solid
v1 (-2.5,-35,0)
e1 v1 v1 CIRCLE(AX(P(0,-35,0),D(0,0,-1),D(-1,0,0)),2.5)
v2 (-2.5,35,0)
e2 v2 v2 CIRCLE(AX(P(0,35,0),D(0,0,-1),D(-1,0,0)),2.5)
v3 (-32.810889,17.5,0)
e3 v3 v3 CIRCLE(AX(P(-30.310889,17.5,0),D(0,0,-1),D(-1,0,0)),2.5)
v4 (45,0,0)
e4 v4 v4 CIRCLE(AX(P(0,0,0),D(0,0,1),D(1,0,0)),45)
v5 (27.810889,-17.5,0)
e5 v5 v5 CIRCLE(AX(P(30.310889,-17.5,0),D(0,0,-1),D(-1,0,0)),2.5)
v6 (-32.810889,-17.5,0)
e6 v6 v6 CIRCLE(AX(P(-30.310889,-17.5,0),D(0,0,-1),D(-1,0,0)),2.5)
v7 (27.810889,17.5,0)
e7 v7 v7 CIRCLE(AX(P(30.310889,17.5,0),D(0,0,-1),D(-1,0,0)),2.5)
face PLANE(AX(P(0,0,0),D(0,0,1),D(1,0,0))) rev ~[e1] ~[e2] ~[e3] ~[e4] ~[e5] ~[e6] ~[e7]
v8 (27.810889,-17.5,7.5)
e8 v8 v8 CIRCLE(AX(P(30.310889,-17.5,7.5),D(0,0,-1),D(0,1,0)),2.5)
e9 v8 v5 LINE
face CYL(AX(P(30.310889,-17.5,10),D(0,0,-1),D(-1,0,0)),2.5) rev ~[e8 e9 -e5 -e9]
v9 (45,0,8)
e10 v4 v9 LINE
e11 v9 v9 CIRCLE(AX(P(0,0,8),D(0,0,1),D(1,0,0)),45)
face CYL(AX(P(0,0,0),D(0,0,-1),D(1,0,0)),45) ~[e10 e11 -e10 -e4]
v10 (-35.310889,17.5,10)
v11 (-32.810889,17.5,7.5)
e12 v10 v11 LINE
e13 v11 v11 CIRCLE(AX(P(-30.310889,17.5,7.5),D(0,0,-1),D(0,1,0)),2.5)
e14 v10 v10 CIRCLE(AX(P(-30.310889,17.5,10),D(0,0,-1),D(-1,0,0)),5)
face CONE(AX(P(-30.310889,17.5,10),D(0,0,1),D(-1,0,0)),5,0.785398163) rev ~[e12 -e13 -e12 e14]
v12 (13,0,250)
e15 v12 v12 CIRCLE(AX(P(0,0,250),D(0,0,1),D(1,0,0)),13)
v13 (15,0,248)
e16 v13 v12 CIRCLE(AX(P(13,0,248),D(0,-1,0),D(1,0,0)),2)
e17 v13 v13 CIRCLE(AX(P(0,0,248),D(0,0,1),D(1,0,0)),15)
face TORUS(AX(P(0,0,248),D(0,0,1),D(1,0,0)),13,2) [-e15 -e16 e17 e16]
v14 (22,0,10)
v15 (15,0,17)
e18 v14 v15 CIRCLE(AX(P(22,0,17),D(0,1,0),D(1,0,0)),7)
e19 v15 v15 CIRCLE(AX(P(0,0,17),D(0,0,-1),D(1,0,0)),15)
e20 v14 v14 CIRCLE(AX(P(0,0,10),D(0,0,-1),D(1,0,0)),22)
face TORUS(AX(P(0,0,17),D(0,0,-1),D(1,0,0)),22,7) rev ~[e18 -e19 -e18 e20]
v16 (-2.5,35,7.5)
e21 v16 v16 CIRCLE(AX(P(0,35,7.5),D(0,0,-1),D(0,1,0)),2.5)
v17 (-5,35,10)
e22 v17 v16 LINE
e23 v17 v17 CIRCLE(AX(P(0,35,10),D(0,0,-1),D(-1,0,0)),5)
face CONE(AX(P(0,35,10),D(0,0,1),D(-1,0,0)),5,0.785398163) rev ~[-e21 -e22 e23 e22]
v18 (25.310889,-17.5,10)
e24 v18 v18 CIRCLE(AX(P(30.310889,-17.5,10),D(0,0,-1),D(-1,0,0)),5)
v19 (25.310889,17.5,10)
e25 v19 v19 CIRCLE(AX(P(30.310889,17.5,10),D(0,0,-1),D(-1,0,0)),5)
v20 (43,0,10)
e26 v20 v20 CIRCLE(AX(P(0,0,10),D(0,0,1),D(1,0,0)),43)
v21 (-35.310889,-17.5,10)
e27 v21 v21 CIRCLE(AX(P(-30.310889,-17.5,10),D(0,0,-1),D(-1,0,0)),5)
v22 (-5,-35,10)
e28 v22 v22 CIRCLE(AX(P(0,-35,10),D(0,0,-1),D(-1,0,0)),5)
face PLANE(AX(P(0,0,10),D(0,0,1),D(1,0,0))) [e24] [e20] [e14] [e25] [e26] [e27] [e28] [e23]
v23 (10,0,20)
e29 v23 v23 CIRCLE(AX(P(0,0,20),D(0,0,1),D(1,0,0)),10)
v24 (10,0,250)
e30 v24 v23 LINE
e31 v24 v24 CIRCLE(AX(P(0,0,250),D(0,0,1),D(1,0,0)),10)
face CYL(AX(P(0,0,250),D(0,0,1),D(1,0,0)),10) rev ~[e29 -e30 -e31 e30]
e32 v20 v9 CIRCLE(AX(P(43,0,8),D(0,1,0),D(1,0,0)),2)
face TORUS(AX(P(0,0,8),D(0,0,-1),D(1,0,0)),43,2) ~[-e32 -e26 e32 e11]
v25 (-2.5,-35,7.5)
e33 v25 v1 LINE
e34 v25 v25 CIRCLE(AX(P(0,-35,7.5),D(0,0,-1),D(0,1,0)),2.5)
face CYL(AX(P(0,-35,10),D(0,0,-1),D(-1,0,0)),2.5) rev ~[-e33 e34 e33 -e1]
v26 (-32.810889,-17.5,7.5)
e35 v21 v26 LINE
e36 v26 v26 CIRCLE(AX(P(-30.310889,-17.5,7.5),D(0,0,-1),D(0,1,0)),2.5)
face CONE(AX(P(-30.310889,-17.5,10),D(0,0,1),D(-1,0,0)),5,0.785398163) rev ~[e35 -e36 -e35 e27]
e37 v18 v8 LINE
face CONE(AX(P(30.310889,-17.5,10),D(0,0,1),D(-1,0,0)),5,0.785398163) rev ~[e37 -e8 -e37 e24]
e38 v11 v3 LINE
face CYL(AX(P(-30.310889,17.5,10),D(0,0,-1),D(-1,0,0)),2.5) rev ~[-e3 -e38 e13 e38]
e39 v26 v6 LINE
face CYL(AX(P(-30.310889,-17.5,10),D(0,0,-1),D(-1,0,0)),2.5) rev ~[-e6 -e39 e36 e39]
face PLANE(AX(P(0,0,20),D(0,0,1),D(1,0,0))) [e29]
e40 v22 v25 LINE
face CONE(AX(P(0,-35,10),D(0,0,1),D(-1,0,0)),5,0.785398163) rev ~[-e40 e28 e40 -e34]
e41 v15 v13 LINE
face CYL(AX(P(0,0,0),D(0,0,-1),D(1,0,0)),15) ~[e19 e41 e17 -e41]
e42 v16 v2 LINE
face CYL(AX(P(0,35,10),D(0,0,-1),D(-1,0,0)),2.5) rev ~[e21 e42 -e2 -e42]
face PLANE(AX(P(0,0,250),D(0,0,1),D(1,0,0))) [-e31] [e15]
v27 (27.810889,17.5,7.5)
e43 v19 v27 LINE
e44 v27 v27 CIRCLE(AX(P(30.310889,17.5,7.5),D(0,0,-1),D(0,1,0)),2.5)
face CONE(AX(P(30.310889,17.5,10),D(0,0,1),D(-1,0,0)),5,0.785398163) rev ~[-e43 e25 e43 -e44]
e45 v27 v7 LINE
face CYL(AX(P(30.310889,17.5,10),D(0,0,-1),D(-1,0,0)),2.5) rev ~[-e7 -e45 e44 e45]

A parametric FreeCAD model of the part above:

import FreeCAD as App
import Part
import Sketcher
Q = App.Units.Quantity


def edges_at(feature, points):
    """Names of the edges that pass closest to the given points."""
    edges = feature.Shape.Edges
    near = lambda p: min(range(len(edges)), key=lambda i: edges[i].distToShape(Part.Vertex(*p))[0])
    return sorted({f"Edge{near(p) + 1}" for p in points})

doc = App.newDocument("Part")
body = doc.addObject("PartDesign::Body", "Body")

sketch1 = body.newObject("Sketcher::SketchObject", "Sketch")
sketch1.AttachmentSupport = (doc.getObject("XY_Plane"), [""])
sketch1.MapMode = "FlatFace"
sketch1.addGeometry(Part.Circle(App.Vector(0, 0, 0), App.Vector(0, 0, 1), 45), False)
sketch1.addConstraint([
    Sketcher.Constraint("Coincident", 0, 3, -1, 1),
    Sketcher.Constraint("Diameter", 0, Q("90 mm")),
])
pad1 = body.newObject("PartDesign::Pad", "Pad")
pad1.Profile = sketch1
pad1.Length = 10

sketch2 = body.newObject("Sketcher::SketchObject", "Sketch001")
sketch2.AttachmentSupport = (doc.getObject("XY_Plane"), [""])
sketch2.MapMode = "FlatFace"
sketch2.addGeometry(Part.Circle(App.Vector(0, 0, 0), App.Vector(0, 0, 1), 15), False)
sketch2.addConstraint([
    Sketcher.Constraint("Coincident", 0, 3, -1, 1),
    Sketcher.Constraint("Diameter", 0, Q("30 mm")),
])
pad2 = body.newObject("PartDesign::Pad", "Pad001")
pad2.Profile = sketch2
pad2.Length = 250

sketch3 = body.newObject("Sketcher::SketchObject", "Sketch002")
sketch3.AttachmentSupport = (doc.getObject("XY_Plane"), [""])
sketch3.MapMode = "FlatFace"
sketch3.AttachmentOffset = App.Placement(App.Vector(0, 0, 10), App.Rotation())
sketch3.addGeometry([
    Part.Circle(App.Vector(0, 35, 0), App.Vector(0, 0, 1), 2.5),
    Part.Circle(App.Vector(-30.3, 17.5, 0), App.Vector(0, 0, 1), 2.5),
    Part.Circle(App.Vector(-30.3, -17.5, 0), App.Vector(0, 0, 1), 2.5),
    Part.Circle(App.Vector(0, -35, 0), App.Vector(0, 0, 1), 2.5),
    Part.Circle(App.Vector(30.3, -17.5, 0), App.Vector(0, 0, 1), 2.5),
    Part.Circle(App.Vector(30.3, 17.5, 0), App.Vector(0, 0, 1), 2.5),
], False)
sketch3.addConstraint([
    Sketcher.Constraint("Equal", 0, 1),
    Sketcher.Constraint("Equal", 1, 2),
    Sketcher.Constraint("Equal", 2, 3),
    Sketcher.Constraint("Equal", 3, 4),
    Sketcher.Constraint("Equal", 4, 5),
    Sketcher.Constraint("Symmetric", 0, 3, 3, 3, -1, 1),
    Sketcher.Constraint("Symmetric", 1, 3, 4, 3, -1, 1),
    Sketcher.Constraint("Symmetric", 2, 3, 5, 3, -1, 1),
    Sketcher.Constraint("Symmetric", 2, 3, 4, 3, -2),
    Sketcher.Constraint("PointOnObject", 0, 3, -2),
    Sketcher.Constraint("Diameter", 0, Q("5 mm")),
    Sketcher.Constraint("DistanceY", -1, 1, 0, 3, Q("35 mm")),
    Sketcher.Constraint("DistanceY", 2, 3, 1, 3, Q("35 mm")),
    Sketcher.Constraint("DistanceX", 1, 3, -1, 1, Q("30.310889 mm")),
])
doc.recompute()
hole = body.newObject("PartDesign::Hole", "Hole")
hole.Profile = sketch3
hole.ThreadType = "None"
hole.Diameter = 5
hole.DepthType = "ThroughAll"
hole.HoleCutType = "Countersink"
hole.HoleCutDiameter = 10
hole.HoleCutCountersinkAngle = 90
doc.recompute()

fillet = body.newObject("PartDesign::Fillet", "Fillet")
fillet.Base = (hole, edges_at(hole, [(-15, 0, 10)]))
fillet.Radius = 7
doc.recompute()

fillet2 = body.newObject("PartDesign::Fillet", "Fillet001")
fillet2.Base = (fillet, edges_at(fillet, [(-15, 0, 250)]))
fillet2.Radius = 2
doc.recompute()

fillet3 = body.newObject("PartDesign::Fillet", "Fillet002")
fillet3.Base = (fillet2, edges_at(fillet2, [(-45, 0, 10)]))
fillet3.Radius = 2

sketch4 = body.newObject("Sketcher::SketchObject", "Sketch003")
sketch4.AttachmentSupport = (doc.getObject("XY_Plane"), [""])
sketch4.MapMode = "FlatFace"
sketch4.AttachmentOffset = App.Placement(App.Vector(0, 0, 250), App.Rotation())
sketch4.addGeometry(Part.Circle(App.Vector(0, 0, 0), App.Vector(0, 0, 1), 10), False)
sketch4.addConstraint([
    Sketcher.Constraint("Coincident", 0, 3, -1, 1),
    Sketcher.Constraint("Diameter", 0, Q("20 mm")),
])
pocket1 = body.newObject("PartDesign::Pocket", "Pocket")
pocket1.Profile = sketch4
pocket1.Length = 230

doc.recompute()
